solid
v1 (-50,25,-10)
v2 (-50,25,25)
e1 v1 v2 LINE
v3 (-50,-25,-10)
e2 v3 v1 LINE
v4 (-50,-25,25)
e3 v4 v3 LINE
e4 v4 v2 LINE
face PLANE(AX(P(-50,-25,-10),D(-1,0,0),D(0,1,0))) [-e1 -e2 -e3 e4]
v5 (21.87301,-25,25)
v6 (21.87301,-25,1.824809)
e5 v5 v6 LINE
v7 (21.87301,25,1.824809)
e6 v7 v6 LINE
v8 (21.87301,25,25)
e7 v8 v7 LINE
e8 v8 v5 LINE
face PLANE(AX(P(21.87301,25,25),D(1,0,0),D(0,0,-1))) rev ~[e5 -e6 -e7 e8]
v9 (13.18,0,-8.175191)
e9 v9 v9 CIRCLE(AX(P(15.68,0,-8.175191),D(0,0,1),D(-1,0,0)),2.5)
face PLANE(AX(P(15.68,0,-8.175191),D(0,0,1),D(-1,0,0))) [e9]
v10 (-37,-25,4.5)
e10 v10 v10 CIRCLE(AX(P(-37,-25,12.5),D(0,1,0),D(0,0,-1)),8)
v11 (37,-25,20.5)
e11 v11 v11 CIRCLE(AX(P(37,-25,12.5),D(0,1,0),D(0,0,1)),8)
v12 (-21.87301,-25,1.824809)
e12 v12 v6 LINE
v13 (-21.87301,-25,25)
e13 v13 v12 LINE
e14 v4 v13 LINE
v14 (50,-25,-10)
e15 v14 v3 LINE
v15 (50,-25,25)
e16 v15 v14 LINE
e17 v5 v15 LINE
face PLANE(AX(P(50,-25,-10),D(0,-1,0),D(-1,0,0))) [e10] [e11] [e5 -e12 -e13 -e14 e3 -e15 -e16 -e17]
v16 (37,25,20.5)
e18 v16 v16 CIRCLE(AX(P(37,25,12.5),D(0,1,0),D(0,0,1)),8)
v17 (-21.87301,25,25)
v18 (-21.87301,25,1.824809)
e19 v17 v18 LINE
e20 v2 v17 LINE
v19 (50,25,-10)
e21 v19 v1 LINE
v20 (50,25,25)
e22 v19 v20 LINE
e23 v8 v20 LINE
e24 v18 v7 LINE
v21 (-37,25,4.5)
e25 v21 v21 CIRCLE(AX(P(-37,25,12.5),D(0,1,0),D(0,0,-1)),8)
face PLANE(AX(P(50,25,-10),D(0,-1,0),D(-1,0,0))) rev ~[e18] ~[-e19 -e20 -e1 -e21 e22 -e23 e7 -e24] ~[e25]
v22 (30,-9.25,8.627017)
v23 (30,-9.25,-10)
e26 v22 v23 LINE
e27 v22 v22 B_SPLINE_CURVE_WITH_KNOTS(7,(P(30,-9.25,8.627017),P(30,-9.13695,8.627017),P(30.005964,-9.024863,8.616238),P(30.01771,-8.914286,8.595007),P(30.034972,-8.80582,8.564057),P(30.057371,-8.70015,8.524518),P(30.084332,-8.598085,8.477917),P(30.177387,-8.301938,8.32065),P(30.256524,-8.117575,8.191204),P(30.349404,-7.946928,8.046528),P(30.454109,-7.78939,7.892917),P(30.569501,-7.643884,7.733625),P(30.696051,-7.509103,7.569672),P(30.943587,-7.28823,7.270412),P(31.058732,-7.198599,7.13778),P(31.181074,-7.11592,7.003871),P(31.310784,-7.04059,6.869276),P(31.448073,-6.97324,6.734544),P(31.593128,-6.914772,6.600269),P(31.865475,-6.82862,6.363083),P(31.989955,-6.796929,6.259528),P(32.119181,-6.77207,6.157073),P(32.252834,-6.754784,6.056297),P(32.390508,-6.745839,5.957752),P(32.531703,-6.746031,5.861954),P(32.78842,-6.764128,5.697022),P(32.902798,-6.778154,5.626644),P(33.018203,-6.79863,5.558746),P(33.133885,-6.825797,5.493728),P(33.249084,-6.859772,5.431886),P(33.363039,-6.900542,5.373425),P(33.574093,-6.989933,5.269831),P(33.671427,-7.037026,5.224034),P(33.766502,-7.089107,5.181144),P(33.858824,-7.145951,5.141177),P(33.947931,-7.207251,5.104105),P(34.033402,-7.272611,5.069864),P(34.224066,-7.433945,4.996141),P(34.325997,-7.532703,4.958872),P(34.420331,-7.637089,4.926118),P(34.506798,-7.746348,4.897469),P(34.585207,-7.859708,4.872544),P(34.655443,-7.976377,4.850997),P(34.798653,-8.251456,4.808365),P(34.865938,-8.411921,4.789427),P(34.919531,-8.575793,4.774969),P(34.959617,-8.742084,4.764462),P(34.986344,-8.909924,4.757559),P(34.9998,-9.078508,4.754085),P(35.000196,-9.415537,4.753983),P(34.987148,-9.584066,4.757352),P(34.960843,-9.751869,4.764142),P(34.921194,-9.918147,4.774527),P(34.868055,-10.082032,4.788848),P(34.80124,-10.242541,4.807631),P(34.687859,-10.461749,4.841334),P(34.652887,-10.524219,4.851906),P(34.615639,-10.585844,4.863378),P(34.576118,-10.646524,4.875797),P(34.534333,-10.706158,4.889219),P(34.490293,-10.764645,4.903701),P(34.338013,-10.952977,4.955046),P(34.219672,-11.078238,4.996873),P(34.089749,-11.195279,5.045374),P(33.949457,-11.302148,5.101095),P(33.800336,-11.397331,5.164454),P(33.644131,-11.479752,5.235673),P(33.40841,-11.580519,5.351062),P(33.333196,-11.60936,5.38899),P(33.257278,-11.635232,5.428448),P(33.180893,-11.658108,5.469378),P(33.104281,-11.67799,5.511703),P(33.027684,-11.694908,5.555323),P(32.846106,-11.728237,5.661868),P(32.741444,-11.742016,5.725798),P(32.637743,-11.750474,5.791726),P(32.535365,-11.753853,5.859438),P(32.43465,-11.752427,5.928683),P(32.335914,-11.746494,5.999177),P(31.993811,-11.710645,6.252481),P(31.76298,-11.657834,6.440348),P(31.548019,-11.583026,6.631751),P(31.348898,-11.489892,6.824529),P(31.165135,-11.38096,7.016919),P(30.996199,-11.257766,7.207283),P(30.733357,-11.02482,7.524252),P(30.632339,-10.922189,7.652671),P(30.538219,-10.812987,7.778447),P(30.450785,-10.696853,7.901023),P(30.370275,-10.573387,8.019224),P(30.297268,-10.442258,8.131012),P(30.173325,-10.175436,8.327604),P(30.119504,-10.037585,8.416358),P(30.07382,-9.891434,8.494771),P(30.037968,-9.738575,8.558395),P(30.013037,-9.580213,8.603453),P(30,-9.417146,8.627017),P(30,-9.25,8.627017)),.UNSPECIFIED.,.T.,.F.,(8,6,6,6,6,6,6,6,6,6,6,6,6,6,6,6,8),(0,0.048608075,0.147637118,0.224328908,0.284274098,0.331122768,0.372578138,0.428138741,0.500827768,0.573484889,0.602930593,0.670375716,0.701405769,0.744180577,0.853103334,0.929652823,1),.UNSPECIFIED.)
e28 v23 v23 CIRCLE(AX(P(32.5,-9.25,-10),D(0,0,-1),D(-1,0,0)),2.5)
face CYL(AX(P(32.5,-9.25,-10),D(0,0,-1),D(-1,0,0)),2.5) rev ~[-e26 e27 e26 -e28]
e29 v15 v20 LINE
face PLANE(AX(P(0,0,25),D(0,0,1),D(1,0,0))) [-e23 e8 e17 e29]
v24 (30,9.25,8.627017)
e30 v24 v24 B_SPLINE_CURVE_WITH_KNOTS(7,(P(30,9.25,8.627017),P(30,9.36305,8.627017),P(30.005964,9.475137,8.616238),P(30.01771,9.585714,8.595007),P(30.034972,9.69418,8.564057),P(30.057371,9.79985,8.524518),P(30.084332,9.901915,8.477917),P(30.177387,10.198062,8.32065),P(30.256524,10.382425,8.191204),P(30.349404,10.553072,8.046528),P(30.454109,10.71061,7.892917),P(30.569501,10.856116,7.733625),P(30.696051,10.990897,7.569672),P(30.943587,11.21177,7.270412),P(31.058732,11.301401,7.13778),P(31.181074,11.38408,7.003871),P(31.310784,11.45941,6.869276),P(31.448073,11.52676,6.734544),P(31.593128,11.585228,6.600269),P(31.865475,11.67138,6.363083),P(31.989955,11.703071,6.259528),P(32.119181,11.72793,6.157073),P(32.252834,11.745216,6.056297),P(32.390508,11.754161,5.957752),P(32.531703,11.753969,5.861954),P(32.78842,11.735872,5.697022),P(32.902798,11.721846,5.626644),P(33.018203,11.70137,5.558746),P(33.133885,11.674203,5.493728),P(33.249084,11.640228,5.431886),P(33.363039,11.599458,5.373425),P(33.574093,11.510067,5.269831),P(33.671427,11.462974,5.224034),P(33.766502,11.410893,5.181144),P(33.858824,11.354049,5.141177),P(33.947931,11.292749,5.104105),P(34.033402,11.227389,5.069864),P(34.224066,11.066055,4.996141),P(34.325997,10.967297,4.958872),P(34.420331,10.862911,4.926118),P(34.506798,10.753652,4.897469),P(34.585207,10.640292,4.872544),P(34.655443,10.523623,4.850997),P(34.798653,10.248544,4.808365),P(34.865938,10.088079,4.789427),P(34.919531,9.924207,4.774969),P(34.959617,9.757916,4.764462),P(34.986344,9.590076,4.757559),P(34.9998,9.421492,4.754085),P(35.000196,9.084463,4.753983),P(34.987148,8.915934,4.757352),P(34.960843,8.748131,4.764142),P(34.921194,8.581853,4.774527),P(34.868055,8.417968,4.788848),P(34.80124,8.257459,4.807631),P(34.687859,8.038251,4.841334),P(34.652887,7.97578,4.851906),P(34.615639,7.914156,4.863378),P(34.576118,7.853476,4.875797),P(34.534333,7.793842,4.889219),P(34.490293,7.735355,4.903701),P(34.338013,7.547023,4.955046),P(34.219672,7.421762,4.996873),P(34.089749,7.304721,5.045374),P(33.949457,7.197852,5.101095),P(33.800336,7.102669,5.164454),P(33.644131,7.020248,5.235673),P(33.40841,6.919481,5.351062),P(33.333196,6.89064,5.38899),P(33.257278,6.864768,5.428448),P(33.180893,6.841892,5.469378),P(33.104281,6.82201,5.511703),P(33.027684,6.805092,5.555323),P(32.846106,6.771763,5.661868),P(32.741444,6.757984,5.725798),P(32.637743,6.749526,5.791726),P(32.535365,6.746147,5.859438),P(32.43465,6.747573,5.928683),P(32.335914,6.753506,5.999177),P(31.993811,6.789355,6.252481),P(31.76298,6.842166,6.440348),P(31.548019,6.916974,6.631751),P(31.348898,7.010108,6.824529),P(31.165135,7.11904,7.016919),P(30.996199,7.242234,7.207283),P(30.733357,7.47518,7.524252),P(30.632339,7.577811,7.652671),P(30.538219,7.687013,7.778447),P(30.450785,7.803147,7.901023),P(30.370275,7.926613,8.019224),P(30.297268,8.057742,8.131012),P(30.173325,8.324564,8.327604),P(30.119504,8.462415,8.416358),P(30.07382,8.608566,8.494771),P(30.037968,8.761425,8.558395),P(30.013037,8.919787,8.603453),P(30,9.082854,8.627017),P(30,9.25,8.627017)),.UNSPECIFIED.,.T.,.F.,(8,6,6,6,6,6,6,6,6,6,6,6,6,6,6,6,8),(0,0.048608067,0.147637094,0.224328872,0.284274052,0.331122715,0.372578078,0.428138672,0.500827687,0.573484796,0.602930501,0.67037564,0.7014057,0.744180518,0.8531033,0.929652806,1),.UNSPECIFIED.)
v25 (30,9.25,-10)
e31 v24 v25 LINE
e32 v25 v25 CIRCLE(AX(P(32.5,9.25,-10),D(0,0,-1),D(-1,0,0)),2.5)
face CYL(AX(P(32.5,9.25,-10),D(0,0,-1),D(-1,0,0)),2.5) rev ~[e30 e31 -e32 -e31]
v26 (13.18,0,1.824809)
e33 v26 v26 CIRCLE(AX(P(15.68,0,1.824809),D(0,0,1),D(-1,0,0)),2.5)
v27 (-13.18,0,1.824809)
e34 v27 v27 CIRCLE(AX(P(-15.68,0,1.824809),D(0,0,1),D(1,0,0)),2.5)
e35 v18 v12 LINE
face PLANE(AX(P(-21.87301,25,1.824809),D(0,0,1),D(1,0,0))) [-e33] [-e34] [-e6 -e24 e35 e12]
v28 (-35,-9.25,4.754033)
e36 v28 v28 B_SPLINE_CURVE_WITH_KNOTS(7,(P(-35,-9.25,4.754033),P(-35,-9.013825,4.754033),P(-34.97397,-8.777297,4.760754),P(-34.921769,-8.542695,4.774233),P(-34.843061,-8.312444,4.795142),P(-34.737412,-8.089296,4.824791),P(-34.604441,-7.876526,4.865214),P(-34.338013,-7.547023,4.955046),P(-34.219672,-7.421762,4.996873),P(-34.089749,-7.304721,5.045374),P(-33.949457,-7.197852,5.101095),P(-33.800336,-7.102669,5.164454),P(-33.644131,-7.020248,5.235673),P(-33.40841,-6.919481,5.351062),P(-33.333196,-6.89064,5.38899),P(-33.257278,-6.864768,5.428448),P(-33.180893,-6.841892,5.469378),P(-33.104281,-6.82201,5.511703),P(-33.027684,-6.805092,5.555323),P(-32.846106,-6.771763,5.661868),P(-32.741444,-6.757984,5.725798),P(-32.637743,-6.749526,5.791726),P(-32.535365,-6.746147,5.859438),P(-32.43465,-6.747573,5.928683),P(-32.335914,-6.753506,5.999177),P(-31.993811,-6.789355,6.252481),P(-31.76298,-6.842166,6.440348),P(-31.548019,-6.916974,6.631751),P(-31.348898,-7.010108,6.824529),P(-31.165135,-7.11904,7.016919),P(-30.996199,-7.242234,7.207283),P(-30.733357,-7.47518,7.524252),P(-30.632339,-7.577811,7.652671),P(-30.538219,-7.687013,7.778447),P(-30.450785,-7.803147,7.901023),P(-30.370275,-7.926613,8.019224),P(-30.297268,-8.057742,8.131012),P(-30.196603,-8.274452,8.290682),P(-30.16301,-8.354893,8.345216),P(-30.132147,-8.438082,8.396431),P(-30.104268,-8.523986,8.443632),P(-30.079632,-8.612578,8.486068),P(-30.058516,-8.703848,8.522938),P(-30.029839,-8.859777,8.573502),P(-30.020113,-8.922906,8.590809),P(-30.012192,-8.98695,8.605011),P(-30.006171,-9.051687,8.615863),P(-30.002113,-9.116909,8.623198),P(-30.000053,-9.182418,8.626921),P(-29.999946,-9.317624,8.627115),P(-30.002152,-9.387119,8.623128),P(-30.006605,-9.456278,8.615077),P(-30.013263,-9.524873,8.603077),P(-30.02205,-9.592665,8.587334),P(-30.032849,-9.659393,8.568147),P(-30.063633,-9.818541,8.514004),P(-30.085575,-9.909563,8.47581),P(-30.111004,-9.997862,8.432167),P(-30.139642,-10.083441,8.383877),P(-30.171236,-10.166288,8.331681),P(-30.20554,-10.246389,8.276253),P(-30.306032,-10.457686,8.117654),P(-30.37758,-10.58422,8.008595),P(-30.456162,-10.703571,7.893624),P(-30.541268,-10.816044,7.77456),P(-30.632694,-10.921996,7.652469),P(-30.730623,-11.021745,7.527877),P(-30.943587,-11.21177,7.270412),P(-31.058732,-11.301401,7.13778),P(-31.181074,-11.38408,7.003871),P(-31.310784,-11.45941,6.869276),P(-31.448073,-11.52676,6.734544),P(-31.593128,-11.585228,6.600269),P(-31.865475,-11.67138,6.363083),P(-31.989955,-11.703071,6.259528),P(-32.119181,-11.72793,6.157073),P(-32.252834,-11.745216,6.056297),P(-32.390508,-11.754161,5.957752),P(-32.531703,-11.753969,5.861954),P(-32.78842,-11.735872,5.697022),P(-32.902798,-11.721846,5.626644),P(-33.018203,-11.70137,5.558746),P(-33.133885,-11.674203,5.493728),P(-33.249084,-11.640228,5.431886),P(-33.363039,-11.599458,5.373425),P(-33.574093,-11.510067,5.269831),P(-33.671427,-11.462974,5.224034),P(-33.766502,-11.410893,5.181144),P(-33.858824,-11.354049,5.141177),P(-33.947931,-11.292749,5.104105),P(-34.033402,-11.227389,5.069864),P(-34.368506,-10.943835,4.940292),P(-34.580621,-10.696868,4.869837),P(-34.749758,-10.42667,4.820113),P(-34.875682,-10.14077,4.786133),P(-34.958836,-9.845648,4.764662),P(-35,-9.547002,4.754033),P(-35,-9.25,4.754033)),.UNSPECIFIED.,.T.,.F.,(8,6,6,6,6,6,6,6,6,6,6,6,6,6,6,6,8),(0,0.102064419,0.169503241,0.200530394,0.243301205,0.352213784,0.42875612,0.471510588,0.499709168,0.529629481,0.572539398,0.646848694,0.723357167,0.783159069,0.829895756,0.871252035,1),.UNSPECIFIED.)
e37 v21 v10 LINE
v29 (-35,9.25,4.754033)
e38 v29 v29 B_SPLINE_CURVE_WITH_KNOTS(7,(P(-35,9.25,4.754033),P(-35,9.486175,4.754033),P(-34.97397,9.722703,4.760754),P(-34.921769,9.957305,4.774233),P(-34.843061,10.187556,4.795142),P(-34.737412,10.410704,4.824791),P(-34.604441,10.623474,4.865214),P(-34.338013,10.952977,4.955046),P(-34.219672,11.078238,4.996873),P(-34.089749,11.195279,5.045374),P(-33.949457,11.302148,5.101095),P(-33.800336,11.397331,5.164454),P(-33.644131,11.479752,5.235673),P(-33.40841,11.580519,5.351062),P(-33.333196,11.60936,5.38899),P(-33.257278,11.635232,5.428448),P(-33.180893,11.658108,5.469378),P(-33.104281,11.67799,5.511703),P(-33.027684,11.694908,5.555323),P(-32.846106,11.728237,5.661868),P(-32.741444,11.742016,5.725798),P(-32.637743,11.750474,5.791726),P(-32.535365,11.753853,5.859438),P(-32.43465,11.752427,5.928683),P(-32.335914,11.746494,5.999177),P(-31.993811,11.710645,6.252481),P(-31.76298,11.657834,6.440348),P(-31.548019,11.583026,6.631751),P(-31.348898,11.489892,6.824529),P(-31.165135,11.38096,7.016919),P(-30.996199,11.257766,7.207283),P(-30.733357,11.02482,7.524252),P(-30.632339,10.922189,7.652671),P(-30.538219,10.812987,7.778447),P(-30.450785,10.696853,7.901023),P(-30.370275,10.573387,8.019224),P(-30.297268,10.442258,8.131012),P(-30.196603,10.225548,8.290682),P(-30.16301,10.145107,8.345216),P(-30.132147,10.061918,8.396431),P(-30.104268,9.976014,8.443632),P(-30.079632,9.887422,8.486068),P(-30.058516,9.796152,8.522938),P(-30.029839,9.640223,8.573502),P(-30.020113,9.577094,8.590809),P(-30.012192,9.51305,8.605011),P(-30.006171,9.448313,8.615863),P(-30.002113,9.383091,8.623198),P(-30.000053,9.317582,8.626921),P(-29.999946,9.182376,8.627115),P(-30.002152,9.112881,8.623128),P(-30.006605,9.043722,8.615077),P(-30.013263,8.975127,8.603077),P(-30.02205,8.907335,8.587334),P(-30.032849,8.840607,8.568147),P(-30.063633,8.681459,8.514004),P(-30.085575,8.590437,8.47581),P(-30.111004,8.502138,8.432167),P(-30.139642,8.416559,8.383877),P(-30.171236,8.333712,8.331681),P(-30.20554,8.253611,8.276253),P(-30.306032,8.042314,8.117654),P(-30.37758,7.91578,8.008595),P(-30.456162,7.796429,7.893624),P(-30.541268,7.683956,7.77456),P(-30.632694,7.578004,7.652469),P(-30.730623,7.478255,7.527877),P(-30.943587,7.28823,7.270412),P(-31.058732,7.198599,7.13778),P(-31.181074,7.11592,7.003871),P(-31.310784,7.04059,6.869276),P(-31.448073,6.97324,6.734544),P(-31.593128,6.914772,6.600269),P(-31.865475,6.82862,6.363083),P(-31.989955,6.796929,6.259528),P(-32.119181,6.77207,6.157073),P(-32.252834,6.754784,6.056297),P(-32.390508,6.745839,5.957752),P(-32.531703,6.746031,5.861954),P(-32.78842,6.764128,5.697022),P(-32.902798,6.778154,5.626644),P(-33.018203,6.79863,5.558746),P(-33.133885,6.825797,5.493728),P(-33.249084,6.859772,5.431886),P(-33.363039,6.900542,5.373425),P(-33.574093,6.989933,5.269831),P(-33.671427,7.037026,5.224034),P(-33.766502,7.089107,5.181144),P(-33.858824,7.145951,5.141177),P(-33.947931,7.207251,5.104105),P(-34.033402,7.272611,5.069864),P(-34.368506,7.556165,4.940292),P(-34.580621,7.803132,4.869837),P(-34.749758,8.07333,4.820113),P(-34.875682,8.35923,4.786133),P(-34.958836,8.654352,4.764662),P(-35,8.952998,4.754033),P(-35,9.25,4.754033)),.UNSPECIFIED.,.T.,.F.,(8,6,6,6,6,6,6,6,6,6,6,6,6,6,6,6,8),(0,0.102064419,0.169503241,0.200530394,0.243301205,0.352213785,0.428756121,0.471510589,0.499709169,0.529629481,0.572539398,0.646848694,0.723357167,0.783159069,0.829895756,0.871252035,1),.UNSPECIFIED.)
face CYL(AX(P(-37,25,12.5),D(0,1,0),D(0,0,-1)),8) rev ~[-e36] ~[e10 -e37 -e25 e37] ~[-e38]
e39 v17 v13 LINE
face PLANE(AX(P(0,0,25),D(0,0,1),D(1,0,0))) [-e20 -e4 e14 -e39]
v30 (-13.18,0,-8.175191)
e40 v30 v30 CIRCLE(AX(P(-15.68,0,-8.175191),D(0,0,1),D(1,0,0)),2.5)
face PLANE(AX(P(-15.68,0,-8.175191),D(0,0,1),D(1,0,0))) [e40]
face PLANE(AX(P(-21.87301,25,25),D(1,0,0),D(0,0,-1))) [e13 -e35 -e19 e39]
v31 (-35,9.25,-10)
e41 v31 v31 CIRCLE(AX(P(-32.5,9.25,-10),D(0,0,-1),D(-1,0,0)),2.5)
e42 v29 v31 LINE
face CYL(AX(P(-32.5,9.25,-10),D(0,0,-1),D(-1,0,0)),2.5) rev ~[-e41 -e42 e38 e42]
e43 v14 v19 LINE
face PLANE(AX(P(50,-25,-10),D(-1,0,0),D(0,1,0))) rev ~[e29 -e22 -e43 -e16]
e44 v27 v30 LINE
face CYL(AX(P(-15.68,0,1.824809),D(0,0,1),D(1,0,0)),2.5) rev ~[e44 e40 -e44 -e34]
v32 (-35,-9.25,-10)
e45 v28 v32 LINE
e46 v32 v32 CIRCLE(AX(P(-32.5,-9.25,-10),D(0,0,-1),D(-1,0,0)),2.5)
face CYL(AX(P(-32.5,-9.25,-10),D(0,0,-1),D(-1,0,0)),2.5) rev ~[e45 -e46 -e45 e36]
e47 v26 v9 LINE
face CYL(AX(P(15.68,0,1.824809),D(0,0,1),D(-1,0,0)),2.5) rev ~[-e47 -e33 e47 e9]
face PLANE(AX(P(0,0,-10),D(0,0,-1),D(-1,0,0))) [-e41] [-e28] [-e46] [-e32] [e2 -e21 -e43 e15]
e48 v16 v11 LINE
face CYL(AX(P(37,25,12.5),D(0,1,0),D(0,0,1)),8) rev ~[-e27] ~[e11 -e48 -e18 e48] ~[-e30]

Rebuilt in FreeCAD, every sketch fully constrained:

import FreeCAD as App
import Part
import Sketcher
Q = App.Units.Quantity


def add_polygon(sketch, points):
    """Adds a closed chain of lines whose ends are joined by coincident constraints."""
    first, n = sketch.GeometryCount, len(points)
    for a, b in zip(points, points[1:] + points[:1]):
        sketch.addGeometry(Part.LineSegment(App.Vector(*a, 0), App.Vector(*b, 0)), False)
    for i in range(n):
        sketch.addConstraint(Sketcher.Constraint("Coincident", first + i, 2, first + (i + 1) % n, 1))

doc = App.newDocument("Part")
body = doc.addObject("PartDesign::Body", "Body")

# Sketch on XY plane
sketch1 = body.newObject("Sketcher::SketchObject", "Sketch")
sketch1.AttachmentSupport = (doc.getObject("XY_Plane"), [""])
sketch1.MapMode = "FlatFace"
add_polygon(sketch1, [(-50, 25), (-50, -25), (50, -25), (50, 25)])  # lines 0-3
sketch1.addConstraint([
    Sketcher.Constraint("Vertical", 0),
    Sketcher.Constraint("Horizontal", 1),
    Sketcher.Constraint("Vertical", 2),
    Sketcher.Constraint("Horizontal", 3),
    Sketcher.Constraint("Symmetric", 0, 2, 2, 2, -1, 1),
    Sketcher.Constraint("DistanceX", 1, 1, 1, 2, Q("100 mm")),
    Sketcher.Constraint("DistanceY", 0, 2, 0, 1, Q("50 mm")),
])
pad1 = body.newObject("PartDesign::Pad", "Pad")
pad1.Profile = sketch1
pad1.Length = 25

# Sketch on XZ plane
sketch2 = body.newObject("Sketcher::SketchObject", "Sketch001")
sketch2.AttachmentSupport = (doc.getObject("XZ_Plane"), [""])
sketch2.MapMode = "FlatFace"
sketch2.AttachmentOffset = App.Placement(App.Vector(0, 0, -25), App.Rotation())
sketch2.addGeometry(Part.Circle(App.Vector(37, 12, 0), App.Vector(0, 0, 1), 8), False)  # 0
sketch2.addGeometry(Part.Circle(App.Vector(-37, 12, 0), App.Vector(0, 0, 1), 8), False)  # 1
add_polygon(sketch2, [(-22, 2), (-22, 25), (22, 25), (22, 2)])  # lines 2-5
sketch2.addConstraint([
    Sketcher.Constraint("Vertical", 2),
    Sketcher.Constraint("Horizontal", 3),
    Sketcher.Constraint("Vertical", 4),
    Sketcher.Constraint("Horizontal", 5),
    Sketcher.Constraint("Equal", 0, 1),
    Sketcher.Constraint("Symmetric", 0, 3, 1, 3, -2),
    Sketcher.Constraint("Diameter", 0, Q("16 mm")),
    Sketcher.Constraint("DistanceX", -1, 1, 0, 3, Q("37 mm")),
    Sketcher.Constraint("DistanceY", -1, 1, 2, 2, Q("25 mm")),
    Sketcher.Constraint("DistanceY", -1, 1, 0, 3, Q("12.5 mm")),
    Sketcher.Constraint("DistanceX", 3, 1, 3, 2, Q("43.746021 mm")),
    Sketcher.Constraint("DistanceY", 2, 1, 2, 2, Q("23.175191 mm")),
    Sketcher.Constraint("DistanceX", 2, 2, -1, 1, Q("21.87301 mm")),
])
pocket1 = body.newObject("PartDesign::Pocket", "Pocket")
pocket1.Profile = sketch2
pocket1.Type = "ThroughAll"
pocket1.Reversed = True

# Sketch on XY plane
sketch3 = body.newObject("Sketcher::SketchObject", "Sketch002")
sketch3.AttachmentSupport = (doc.getObject("XY_Plane"), [""])
sketch3.MapMode = "FlatFace"
sketch3.addGeometry([
    Part.Circle(App.Vector(-32.5, 9.2, 0), App.Vector(0, 0, 1), 2.5),
    Part.Circle(App.Vector(-32.5, -9.2, 0), App.Vector(0, 0, 1), 2.5),
    Part.Circle(App.Vector(32.5, -9.2, 0), App.Vector(0, 0, 1), 2.5),
    Part.Circle(App.Vector(32.5, 9.2, 0), App.Vector(0, 0, 1), 2.5),
], False)
sketch3.addConstraint([
    Sketcher.Constraint("Equal", 0, 1),
    Sketcher.Constraint("Equal", 1, 2),
    Sketcher.Constraint("Equal", 2, 3),
    Sketcher.Constraint("Symmetric", 0, 3, 2, 3, -1, 1),
    Sketcher.Constraint("Symmetric", 1, 3, 3, 3, -1, 1),
    Sketcher.Constraint("Symmetric", 1, 3, 2, 3, -2),
    Sketcher.Constraint("Diameter", 0, Q("5 mm")),
    Sketcher.Constraint("DistanceX", 1, 3, 2, 3, Q("65 mm")),
    Sketcher.Constraint("DistanceY", 1, 3, 0, 3, Q("18.5 mm")),
])
pocket2 = body.newObject("PartDesign::Pocket", "Pocket001")
pocket2.Profile = sketch3
pocket2.Length = 10
pocket2.Reversed = True

# Sketch on XY plane
sketch4 = body.newObject("Sketcher::SketchObject", "Sketch003")
sketch4.AttachmentSupport = (doc.getObject("XY_Plane"), [""])
sketch4.MapMode = "FlatFace"
sketch4.AttachmentOffset = App.Placement(App.Vector(0, 0, -10), App.Rotation())
add_polygon(sketch4, [(50, 25), (50, -25), (-50, -25), (-50, 25)])  # lines 0-3
sketch4.addGeometry(Part.Circle(App.Vector(32.5, -9.2, 0), App.Vector(0, 0, 1), 2.5), False)  # 4
sketch4.addGeometry(Part.Circle(App.Vector(-32.5, -9.2, 0), App.Vector(0, 0, 1), 2.5), False)  # 5
sketch4.addGeometry(Part.Circle(App.Vector(32.5, 9.2, 0), App.Vector(0, 0, 1), 2.5), False)  # 6
sketch4.addGeometry(Part.Circle(App.Vector(-32.5, 9.2, 0), App.Vector(0, 0, 1), 2.5), False)  # 7
sketch4.addConstraint([
    Sketcher.Constraint("Vertical", 0),
    Sketcher.Constraint("Horizontal", 1),
    Sketcher.Constraint("Vertical", 2),
    Sketcher.Constraint("Horizontal", 3),
    Sketcher.Constraint("Equal", 4, 5),
    Sketcher.Constraint("Equal", 5, 6),
    Sketcher.Constraint("Equal", 6, 7),
    Sketcher.Constraint("Symmetric", 5, 3, 6, 3, -1, 1),
    Sketcher.Constraint("Symmetric", 4, 3, 7, 3, -1, 1),
    Sketcher.Constraint("Symmetric", 0, 2, 2, 2, -1, 1),
    Sketcher.Constraint("Symmetric", 4, 3, 5, 3, -2),
    Sketcher.Constraint("Diameter", 4, Q("5 mm")),
    Sketcher.Constraint("DistanceX", 1, 2, 1, 1, Q("100 mm")),
    Sketcher.Constraint("DistanceY", 0, 2, 0, 1, Q("50 mm")),
    Sketcher.Constraint("DistanceX", 5, 3, 4, 3, Q("65 mm")),
    Sketcher.Constraint("DistanceY", 4, 3, 6, 3, Q("18.5 mm")),
])
pad2 = body.newObject("PartDesign::Pad", "Pad001")
pad2.Profile = sketch4
pad2.Length = 10

# Sketch on XY plane
sketch5 = body.newObject("Sketcher::SketchObject", "Sketch004")
sketch5.AttachmentSupport = (doc.getObject("XY_Plane"), [""])
sketch5.MapMode = "FlatFace"
sketch5.AttachmentOffset = App.Placement(App.Vector(0, 0, 1.824809), App.Rotation())
sketch5.addGeometry([
    Part.Circle(App.Vector(-15.7, 0, 0), App.Vector(0, 0, 1), 2.5),
    Part.Circle(App.Vector(15.7, 0, 0), App.Vector(0, 0, 1), 2.5),
], False)
sketch5.addConstraint([
    Sketcher.Constraint("Equal", 0, 1),
    Sketcher.Constraint("Symmetric", 0, 3, 1, 3, -1, 1),
    Sketcher.Constraint("PointOnObject", 0, 3, -1),
    Sketcher.Constraint("Diameter", 0, Q("5 mm")),
    Sketcher.Constraint("DistanceX", 0, 3, -1, 1, Q("15.68 mm")),
])
pocket3 = body.newObject("PartDesign::Pocket", "Pocket002")
pocket3.Profile = sketch5
pocket3.Length = 10

doc.recompute()
